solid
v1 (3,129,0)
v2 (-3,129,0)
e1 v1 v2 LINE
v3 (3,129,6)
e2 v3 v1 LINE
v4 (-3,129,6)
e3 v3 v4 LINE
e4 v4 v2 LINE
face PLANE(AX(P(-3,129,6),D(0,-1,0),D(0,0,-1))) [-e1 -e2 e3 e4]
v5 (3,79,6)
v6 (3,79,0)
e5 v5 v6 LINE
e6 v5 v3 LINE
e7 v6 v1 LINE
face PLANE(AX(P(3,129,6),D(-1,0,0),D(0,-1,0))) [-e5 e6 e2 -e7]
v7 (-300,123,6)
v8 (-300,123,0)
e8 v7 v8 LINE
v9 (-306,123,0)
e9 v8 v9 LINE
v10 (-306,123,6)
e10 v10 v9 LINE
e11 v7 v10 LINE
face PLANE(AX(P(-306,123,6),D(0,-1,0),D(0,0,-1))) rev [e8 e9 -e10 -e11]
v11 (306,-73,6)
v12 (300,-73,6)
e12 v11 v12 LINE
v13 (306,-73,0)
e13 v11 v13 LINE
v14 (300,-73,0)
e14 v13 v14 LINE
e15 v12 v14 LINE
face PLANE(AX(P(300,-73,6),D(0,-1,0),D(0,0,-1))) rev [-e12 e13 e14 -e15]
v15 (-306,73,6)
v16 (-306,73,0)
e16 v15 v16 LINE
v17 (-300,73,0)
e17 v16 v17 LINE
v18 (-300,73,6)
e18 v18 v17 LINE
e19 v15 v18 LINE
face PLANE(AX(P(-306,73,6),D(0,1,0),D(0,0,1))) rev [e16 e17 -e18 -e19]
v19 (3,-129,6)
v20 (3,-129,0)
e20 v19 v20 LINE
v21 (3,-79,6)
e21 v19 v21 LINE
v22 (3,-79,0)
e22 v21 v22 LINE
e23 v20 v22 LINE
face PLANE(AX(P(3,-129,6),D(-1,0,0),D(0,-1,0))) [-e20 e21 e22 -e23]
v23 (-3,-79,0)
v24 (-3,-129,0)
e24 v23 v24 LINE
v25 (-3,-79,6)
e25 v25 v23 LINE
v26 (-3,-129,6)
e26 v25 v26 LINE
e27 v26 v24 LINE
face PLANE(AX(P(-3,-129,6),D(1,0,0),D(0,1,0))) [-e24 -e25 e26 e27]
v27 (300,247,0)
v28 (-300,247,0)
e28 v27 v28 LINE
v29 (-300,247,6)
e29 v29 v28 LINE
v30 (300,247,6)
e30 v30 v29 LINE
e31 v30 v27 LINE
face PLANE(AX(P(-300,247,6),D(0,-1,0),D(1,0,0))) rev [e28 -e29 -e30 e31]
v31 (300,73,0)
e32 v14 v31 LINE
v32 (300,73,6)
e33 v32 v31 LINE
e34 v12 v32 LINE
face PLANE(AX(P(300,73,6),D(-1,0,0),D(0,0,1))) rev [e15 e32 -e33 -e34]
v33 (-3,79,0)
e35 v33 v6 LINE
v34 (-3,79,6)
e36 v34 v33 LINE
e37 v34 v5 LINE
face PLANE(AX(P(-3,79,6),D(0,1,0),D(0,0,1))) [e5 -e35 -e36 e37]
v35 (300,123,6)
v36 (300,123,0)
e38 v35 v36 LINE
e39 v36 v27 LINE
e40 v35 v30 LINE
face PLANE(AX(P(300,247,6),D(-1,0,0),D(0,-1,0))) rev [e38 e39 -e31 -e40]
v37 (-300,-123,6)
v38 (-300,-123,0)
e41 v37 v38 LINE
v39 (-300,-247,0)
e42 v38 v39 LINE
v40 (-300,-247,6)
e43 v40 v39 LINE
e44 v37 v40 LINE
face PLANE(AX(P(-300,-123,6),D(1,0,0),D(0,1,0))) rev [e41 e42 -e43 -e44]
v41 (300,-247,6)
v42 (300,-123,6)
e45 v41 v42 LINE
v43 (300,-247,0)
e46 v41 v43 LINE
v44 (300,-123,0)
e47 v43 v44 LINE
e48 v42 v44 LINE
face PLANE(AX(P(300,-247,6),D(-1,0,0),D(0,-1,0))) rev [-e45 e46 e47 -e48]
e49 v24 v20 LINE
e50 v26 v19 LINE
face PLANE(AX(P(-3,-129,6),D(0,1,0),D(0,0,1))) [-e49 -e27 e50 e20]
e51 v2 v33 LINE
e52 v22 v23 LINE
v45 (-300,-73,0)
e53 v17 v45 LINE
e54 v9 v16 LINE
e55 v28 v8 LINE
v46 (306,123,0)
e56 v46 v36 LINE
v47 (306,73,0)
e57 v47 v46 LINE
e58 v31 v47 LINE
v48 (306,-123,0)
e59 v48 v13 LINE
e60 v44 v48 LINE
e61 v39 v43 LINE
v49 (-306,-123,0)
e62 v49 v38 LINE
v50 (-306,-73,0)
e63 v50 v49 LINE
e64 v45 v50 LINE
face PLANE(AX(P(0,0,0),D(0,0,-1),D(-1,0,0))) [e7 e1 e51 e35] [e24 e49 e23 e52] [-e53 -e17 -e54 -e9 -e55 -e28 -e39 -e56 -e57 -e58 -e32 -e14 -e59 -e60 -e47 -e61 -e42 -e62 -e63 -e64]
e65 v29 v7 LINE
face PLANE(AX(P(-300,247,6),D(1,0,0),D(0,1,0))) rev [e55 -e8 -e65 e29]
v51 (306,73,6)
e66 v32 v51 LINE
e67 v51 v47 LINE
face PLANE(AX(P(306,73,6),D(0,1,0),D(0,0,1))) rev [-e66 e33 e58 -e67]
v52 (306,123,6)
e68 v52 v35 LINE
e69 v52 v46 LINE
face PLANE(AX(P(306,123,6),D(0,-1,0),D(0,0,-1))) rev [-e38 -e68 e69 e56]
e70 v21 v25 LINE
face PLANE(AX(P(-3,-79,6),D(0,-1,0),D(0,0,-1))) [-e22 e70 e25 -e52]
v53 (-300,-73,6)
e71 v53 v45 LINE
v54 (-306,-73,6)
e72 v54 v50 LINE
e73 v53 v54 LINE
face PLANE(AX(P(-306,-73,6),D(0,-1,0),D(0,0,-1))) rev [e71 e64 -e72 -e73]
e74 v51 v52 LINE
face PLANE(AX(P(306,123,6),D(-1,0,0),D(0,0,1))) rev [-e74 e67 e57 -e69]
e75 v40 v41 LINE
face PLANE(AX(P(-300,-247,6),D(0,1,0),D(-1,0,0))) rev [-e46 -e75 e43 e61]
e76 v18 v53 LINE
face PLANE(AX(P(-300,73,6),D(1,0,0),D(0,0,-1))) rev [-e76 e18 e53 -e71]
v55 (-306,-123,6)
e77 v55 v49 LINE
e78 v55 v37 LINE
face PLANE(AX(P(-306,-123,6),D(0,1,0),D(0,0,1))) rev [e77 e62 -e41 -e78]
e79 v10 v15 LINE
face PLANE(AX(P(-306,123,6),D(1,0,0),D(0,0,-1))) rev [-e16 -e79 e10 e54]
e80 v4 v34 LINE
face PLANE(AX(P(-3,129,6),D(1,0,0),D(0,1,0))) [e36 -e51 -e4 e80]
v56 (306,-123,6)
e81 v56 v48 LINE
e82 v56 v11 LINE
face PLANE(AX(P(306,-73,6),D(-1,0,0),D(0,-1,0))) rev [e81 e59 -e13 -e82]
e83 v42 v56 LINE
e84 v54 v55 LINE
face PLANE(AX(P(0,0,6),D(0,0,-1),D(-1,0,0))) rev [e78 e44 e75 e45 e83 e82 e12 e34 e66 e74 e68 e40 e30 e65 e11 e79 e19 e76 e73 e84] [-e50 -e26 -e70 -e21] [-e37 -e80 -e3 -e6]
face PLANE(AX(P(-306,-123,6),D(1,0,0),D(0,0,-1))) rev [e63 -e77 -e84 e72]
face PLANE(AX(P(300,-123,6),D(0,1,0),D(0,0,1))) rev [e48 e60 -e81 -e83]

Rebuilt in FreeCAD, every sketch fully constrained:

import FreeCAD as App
import Part
import Sketcher

V = App.Vector

doc = App.newDocument("Part")
params = doc.addObject("Spreadsheet::Sheet", "Params")
for row, (alias, value) in enumerate([
    ("sketch1_width", "600 mm"),
    ("sketch1_width2", "6 mm"),
    ("sketch1_height", "124 mm"),
    ("sketch1_height2", "50 mm"),
    ("sketch1_height3", "146 mm"),
    ("pad1_length", "6 mm"),
], start=1):
    params.set(f"A{row}", alias)
    params.set(f"B{row}", "=" + value)
    params.setAlias(f"B{row}", alias)

body = doc.addObject("PartDesign::Body", "Body")

# Sketch on XY plane
sketch1 = body.newObject("Sketcher::SketchObject", "Sketch")
sketch1.AttachmentSupport = (doc.getObject("XY_Plane"), [""])
sketch1.MapMode = "FlatFace"
sketch1.addGeometry([
    Part.LineSegment(V(300, 247, 0), V(-300, 247, 0)),  # 0
    Part.LineSegment(V(-300, 247, 0), V(-300, 123, 0)),  # 1
    Part.LineSegment(V(-300, 123, 0), V(-306, 123, 0)),  # 2
    Part.LineSegment(V(-306, 123, 0), V(-306, 73, 0)),  # 3
    Part.LineSegment(V(-306, 73, 0), V(-300, 73, 0)),  # 4
    Part.LineSegment(V(-300, 73, 0), V(-300, -73, 0)),  # 5
    Part.LineSegment(V(-300, -73, 0), V(-306, -73, 0)),  # 6
    Part.LineSegment(V(-306, -73, 0), V(-306, -123, 0)),  # 7
    Part.LineSegment(V(-306, -123, 0), V(-300, -123, 0)),  # 8
    Part.LineSegment(V(-300, -123, 0), V(-300, -247, 0)),  # 9
    Part.LineSegment(V(-300, -247, 0), V(300, -247, 0)),  # 10
    Part.LineSegment(V(300, -247, 0), V(300, -123, 0)),  # 11
    Part.LineSegment(V(300, -123, 0), V(306, -123, 0)),  # 12
    Part.LineSegment(V(306, -123, 0), V(306, -73, 0)),  # 13
    Part.LineSegment(V(306, -73, 0), V(300, -73, 0)),  # 14
    Part.LineSegment(V(300, -73, 0), V(300, 73, 0)),  # 15
    Part.LineSegment(V(300, 73, 0), V(306, 73, 0)),  # 16
    Part.LineSegment(V(306, 73, 0), V(306, 123, 0)),  # 17
    Part.LineSegment(V(306, 123, 0), V(300, 123, 0)),  # 18
    Part.LineSegment(V(300, 123, 0), V(300, 247, 0)),  # 19
    Part.LineSegment(V(-3, -129, 0), V(-3, -79, 0)),  # 20
    Part.LineSegment(V(-3, -79, 0), V(3, -79, 0)),  # 21
    Part.LineSegment(V(3, -79, 0), V(3, -129, 0)),  # 22
    Part.LineSegment(V(3, -129, 0), V(-3, -129, 0)),  # 23
    Part.LineSegment(V(-3, 79, 0), V(-3, 129, 0)),  # 24
    Part.LineSegment(V(-3, 129, 0), V(3, 129, 0)),  # 25
    Part.LineSegment(V(3, 129, 0), V(3, 79, 0)),  # 26
    Part.LineSegment(V(3, 79, 0), V(-3, 79, 0)),  # 27
], False)
sketch1.addConstraint([
    Sketcher.Constraint("Coincident", 0, 2, 1, 1),
    Sketcher.Constraint("Coincident", 1, 2, 2, 1),
    Sketcher.Constraint("Coincident", 2, 2, 3, 1),
    Sketcher.Constraint("Coincident", 3, 2, 4, 1),
    Sketcher.Constraint("Coincident", 4, 2, 5, 1),
    Sketcher.Constraint("Coincident", 5, 2, 6, 1),
    Sketcher.Constraint("Coincident", 6, 2, 7, 1),
    Sketcher.Constraint("Coincident", 7, 2, 8, 1),
    Sketcher.Constraint("Coincident", 8, 2, 9, 1),
    Sketcher.Constraint("Coincident", 9, 2, 10, 1),
    Sketcher.Constraint("Coincident", 10, 2, 11, 1),
    Sketcher.Constraint("Coincident", 11, 2, 12, 1),
    Sketcher.Constraint("Coincident", 12, 2, 13, 1),
    Sketcher.Constraint("Coincident", 13, 2, 14, 1),
    Sketcher.Constraint("Coincident", 14, 2, 15, 1),
    Sketcher.Constraint("Coincident", 15, 2, 16, 1),
    Sketcher.Constraint("Coincident", 16, 2, 17, 1),
    Sketcher.Constraint("Coincident", 17, 2, 18, 1),
    Sketcher.Constraint("Coincident", 18, 2, 19, 1),
    Sketcher.Constraint("Coincident", 19, 2, 0, 1),
    Sketcher.Constraint("Coincident", 20, 2, 21, 1),
    Sketcher.Constraint("Coincident", 21, 2, 22, 1),
    Sketcher.Constraint("Coincident", 22, 2, 23, 1),
    Sketcher.Constraint("Coincident", 23, 2, 20, 1),
    Sketcher.Constraint("Coincident", 24, 2, 25, 1),
    Sketcher.Constraint("Coincident", 25, 2, 26, 1),
    Sketcher.Constraint("Coincident", 26, 2, 27, 1),
    Sketcher.Constraint("Coincident", 27, 2, 24, 1),
    Sketcher.Constraint("Horizontal", 0),
    Sketcher.Constraint("Vertical", 1),
    Sketcher.Constraint("Horizontal", 2),
    Sketcher.Constraint("Vertical", 3),
    Sketcher.Constraint("Horizontal", 4),
    Sketcher.Constraint("Vertical", 5),
    Sketcher.Constraint("Horizontal", 6),
    Sketcher.Constraint("Vertical", 7),
    Sketcher.Constraint("Horizontal", 8),
    Sketcher.Constraint("Vertical", 9),
    Sketcher.Constraint("Horizontal", 10),
    Sketcher.Constraint("Vertical", 11),
    Sketcher.Constraint("Horizontal", 12),
    Sketcher.Constraint("Vertical", 13),
    Sketcher.Constraint("Horizontal", 14),
    Sketcher.Constraint("Vertical", 15),
    Sketcher.Constraint("Horizontal", 16),
    Sketcher.Constraint("Vertical", 17),
    Sketcher.Constraint("Horizontal", 18),
    Sketcher.Constraint("Vertical", 19),
    Sketcher.Constraint("Vertical", 20),
    Sketcher.Constraint("Horizontal", 21),
    Sketcher.Constraint("Vertical", 22),
    Sketcher.Constraint("Horizontal", 23),
    Sketcher.Constraint("Vertical", 24),
    Sketcher.Constraint("Horizontal", 25),
    Sketcher.Constraint("Vertical", 26),
    Sketcher.Constraint("Horizontal", 27),
    Sketcher.Constraint("Symmetric", 0, 2, 10, 2, -1, 1),
    Sketcher.Constraint("Symmetric", 2, 2, 12, 2, -1, 1),
    Sketcher.Constraint("Symmetric", 4, 2, 14, 2, -1, 1),
    Sketcher.Constraint("Symmetric", 6, 2, 16, 2, -1, 1),
    Sketcher.Constraint("Symmetric", 8, 2, 18, 2, -1, 1),
    Sketcher.Constraint("Symmetric", 22, 2, 24, 2, -1, 1),
    Sketcher.Constraint("Symmetric", 20, 2, 26, 2, -1, 1),
    Sketcher.Constraint("Symmetric", 8, 2, 11, 2, -2),
    Sketcher.Constraint("Symmetric", 6, 2, 13, 2, -2),
    Sketcher.Constraint("Vertical", 1, 2, 4, 2),
    Sketcher.Constraint("Vertical", 23, 2, 24, 2),
    Sketcher.Constraint("Equal", 18, 21),
    Sketcher.Constraint("Equal", 17, 20),
    Sketcher.Constraint("DistanceX", 0, 2, 0, 1, 600.0),
    Sketcher.Constraint("DistanceX", 2, 2, 2, 1, 6.0),
    Sketcher.Constraint("DistanceY", 1, 2, 1, 1, 124.0),
    Sketcher.Constraint("DistanceY", 3, 2, 3, 1, 50.0),
    Sketcher.Constraint("DistanceY", 5, 2, 5, 1, 146.0),
    Sketcher.Constraint("DistanceY", 20, 2, -1, 1, 79.0),
])
sketch1.setExpression("Constraints[69]", "Params.sketch1_width")
sketch1.setExpression("Constraints[70]", "Params.sketch1_width2")
sketch1.setExpression("Constraints[71]", "Params.sketch1_height")
sketch1.setExpression("Constraints[72]", "Params.sketch1_height2")
sketch1.setExpression("Constraints[73]", "Params.sketch1_height3")
pad1 = body.newObject("PartDesign::Pad", "Pad")
pad1.Profile = sketch1
pad1.setExpression("Length", "Params.pad1_length")

doc.recompute()
